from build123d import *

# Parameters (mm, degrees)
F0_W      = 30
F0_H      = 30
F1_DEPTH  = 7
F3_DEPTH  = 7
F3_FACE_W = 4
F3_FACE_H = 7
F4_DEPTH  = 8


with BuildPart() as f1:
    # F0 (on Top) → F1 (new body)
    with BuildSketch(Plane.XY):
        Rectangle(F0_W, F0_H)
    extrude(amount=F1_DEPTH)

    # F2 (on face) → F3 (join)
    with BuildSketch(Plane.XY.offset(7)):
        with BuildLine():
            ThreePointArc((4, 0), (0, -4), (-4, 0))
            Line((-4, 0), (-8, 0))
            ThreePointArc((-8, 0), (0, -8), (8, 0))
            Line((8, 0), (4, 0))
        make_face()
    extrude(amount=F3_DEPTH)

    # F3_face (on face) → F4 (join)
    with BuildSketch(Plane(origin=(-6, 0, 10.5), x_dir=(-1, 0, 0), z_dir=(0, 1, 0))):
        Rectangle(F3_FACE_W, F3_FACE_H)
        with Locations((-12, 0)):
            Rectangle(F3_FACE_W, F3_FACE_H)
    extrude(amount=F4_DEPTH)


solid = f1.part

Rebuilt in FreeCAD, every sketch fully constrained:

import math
import FreeCAD as App
import Part
import Sketcher
Q = App.Units.Quantity


def add_polygon(sketch, points):
    """Adds a closed chain of lines whose ends are joined by coincident constraints."""
    first, n = sketch.GeometryCount, len(points)
    for a, b in zip(points, points[1:] + points[:1]):
        sketch.addGeometry(Part.LineSegment(App.Vector(*a, 0), App.Vector(*b, 0)), False)
    for i in range(n):
        sketch.addConstraint(Sketcher.Constraint("Coincident", first + i, 2, first + (i + 1) % n, 1))

doc = App.newDocument("Part")
body = doc.addObject("PartDesign::Body", "Body")

sketch1 = body.newObject("Sketcher::SketchObject", "Sketch")
sketch1.AttachmentSupport = (doc.getObject("XY_Plane"), [""])
sketch1.MapMode = "FlatFace"
add_polygon(sketch1, [(-15, 15), (-15, -15), (15, -15), (15, 15)])
sketch1.addConstraint([
    Sketcher.Constraint("Vertical", 0),
    Sketcher.Constraint("Horizontal", 1),
    Sketcher.Constraint("Vertical", 2),
    Sketcher.Constraint("Horizontal", 3),
    Sketcher.Constraint("Symmetric", 0, 2, 2, 2, -1, 1),
    Sketcher.Constraint("Equal", 3, 0),
    Sketcher.Constraint("DistanceX", 1, 1, 1, 2, Q("30 mm")),
])
pad1 = body.newObject("PartDesign::Pad", "Pad")
pad1.Profile = sketch1
pad1.Length = 7

sketch2 = body.newObject("Sketcher::SketchObject", "Sketch001")
sketch2.AttachmentSupport = (doc.getObject("XY_Plane"), [""])
sketch2.MapMode = "FlatFace"
sketch2.AttachmentOffset = App.Placement(App.Vector(0, 0, 7), App.Rotation())
sketch2.addGeometry([
    Part.ArcOfCircle(Part.Circle(App.Vector(0, 0, 0), App.Vector(0, 0, 1), 4), math.radians(180), math.radians(360)),
    Part.LineSegment(App.Vector(-4, 0, 0), App.Vector(-8, 0, 0)),
    Part.ArcOfCircle(Part.Circle(App.Vector(0, 0, 0), App.Vector(0, 0, 1), 8), math.radians(180), math.radians(360)),
    Part.LineSegment(App.Vector(8, 0, 0), App.Vector(4, 0, 0)),
], False)
sketch2.addConstraint([
    Sketcher.Constraint("Coincident", 0, 1, 1, 1),
    Sketcher.Constraint("Coincident", 1, 2, 2, 1),
    Sketcher.Constraint("Coincident", 2, 2, 3, 1),
    Sketcher.Constraint("Coincident", 3, 2, 0, 2),
    Sketcher.Constraint("Horizontal", 1),
    Sketcher.Constraint("Horizontal", 3),
    Sketcher.Constraint("Coincident", 0, 3, -1, 1),
    Sketcher.Constraint("Coincident", 2, 3, -1, 1),
    Sketcher.Constraint("PointOnObject", 0, 1, -1),
    Sketcher.Constraint("PointOnObject", 2, 2, -1),
    Sketcher.Constraint("Radius", 0, Q("4 mm")),
    Sketcher.Constraint("Radius", 2, Q("8 mm")),
])
pad2 = body.newObject("PartDesign::Pad", "Pad001")
pad2.Profile = sketch2
pad2.Length = 7

sketch3 = body.newObject("Sketcher::SketchObject", "Sketch002")
sketch3.AttachmentSupport = (doc.getObject("XZ_Plane"), [""])
sketch3.MapMode = "FlatFace"
add_polygon(sketch3, [(-4, 14), (-4, 7), (-8, 7), (-8, 14)])
add_polygon(sketch3, [(8, 14), (8, 7), (4, 7), (4, 14)])
sketch3.addConstraint([
    Sketcher.Constraint("Vertical", 0),
    Sketcher.Constraint("Horizontal", 1),
    Sketcher.Constraint("Vertical", 2),
    Sketcher.Constraint("Horizontal", 3),
    Sketcher.Constraint("Vertical", 4),
    Sketcher.Constraint("Horizontal", 5),
    Sketcher.Constraint("Vertical", 6),
    Sketcher.Constraint("Horizontal", 7),
    Sketcher.Constraint("Symmetric", 1, 2, 4, 2, -2),
    Sketcher.Constraint("Symmetric", 3, 2, 6, 2, -2),
    Sketcher.Constraint("DistanceX", 1, 2, 1, 1, Q("4 mm")),
    Sketcher.Constraint("DistanceY", 0, 2, 0, 1, Q("7 mm")),
    Sketcher.Constraint("DistanceX", 0, 2, -1, 1, Q("4 mm")),
    Sketcher.Constraint("DistanceY", -1, 1, 0, 2, Q("7 mm")),
])
pad3 = body.newObject("PartDesign::Pad", "Pad002")
pad3.Profile = sketch3
pad3.Length = 8
pad3.Reversed = True

doc.recompute()
